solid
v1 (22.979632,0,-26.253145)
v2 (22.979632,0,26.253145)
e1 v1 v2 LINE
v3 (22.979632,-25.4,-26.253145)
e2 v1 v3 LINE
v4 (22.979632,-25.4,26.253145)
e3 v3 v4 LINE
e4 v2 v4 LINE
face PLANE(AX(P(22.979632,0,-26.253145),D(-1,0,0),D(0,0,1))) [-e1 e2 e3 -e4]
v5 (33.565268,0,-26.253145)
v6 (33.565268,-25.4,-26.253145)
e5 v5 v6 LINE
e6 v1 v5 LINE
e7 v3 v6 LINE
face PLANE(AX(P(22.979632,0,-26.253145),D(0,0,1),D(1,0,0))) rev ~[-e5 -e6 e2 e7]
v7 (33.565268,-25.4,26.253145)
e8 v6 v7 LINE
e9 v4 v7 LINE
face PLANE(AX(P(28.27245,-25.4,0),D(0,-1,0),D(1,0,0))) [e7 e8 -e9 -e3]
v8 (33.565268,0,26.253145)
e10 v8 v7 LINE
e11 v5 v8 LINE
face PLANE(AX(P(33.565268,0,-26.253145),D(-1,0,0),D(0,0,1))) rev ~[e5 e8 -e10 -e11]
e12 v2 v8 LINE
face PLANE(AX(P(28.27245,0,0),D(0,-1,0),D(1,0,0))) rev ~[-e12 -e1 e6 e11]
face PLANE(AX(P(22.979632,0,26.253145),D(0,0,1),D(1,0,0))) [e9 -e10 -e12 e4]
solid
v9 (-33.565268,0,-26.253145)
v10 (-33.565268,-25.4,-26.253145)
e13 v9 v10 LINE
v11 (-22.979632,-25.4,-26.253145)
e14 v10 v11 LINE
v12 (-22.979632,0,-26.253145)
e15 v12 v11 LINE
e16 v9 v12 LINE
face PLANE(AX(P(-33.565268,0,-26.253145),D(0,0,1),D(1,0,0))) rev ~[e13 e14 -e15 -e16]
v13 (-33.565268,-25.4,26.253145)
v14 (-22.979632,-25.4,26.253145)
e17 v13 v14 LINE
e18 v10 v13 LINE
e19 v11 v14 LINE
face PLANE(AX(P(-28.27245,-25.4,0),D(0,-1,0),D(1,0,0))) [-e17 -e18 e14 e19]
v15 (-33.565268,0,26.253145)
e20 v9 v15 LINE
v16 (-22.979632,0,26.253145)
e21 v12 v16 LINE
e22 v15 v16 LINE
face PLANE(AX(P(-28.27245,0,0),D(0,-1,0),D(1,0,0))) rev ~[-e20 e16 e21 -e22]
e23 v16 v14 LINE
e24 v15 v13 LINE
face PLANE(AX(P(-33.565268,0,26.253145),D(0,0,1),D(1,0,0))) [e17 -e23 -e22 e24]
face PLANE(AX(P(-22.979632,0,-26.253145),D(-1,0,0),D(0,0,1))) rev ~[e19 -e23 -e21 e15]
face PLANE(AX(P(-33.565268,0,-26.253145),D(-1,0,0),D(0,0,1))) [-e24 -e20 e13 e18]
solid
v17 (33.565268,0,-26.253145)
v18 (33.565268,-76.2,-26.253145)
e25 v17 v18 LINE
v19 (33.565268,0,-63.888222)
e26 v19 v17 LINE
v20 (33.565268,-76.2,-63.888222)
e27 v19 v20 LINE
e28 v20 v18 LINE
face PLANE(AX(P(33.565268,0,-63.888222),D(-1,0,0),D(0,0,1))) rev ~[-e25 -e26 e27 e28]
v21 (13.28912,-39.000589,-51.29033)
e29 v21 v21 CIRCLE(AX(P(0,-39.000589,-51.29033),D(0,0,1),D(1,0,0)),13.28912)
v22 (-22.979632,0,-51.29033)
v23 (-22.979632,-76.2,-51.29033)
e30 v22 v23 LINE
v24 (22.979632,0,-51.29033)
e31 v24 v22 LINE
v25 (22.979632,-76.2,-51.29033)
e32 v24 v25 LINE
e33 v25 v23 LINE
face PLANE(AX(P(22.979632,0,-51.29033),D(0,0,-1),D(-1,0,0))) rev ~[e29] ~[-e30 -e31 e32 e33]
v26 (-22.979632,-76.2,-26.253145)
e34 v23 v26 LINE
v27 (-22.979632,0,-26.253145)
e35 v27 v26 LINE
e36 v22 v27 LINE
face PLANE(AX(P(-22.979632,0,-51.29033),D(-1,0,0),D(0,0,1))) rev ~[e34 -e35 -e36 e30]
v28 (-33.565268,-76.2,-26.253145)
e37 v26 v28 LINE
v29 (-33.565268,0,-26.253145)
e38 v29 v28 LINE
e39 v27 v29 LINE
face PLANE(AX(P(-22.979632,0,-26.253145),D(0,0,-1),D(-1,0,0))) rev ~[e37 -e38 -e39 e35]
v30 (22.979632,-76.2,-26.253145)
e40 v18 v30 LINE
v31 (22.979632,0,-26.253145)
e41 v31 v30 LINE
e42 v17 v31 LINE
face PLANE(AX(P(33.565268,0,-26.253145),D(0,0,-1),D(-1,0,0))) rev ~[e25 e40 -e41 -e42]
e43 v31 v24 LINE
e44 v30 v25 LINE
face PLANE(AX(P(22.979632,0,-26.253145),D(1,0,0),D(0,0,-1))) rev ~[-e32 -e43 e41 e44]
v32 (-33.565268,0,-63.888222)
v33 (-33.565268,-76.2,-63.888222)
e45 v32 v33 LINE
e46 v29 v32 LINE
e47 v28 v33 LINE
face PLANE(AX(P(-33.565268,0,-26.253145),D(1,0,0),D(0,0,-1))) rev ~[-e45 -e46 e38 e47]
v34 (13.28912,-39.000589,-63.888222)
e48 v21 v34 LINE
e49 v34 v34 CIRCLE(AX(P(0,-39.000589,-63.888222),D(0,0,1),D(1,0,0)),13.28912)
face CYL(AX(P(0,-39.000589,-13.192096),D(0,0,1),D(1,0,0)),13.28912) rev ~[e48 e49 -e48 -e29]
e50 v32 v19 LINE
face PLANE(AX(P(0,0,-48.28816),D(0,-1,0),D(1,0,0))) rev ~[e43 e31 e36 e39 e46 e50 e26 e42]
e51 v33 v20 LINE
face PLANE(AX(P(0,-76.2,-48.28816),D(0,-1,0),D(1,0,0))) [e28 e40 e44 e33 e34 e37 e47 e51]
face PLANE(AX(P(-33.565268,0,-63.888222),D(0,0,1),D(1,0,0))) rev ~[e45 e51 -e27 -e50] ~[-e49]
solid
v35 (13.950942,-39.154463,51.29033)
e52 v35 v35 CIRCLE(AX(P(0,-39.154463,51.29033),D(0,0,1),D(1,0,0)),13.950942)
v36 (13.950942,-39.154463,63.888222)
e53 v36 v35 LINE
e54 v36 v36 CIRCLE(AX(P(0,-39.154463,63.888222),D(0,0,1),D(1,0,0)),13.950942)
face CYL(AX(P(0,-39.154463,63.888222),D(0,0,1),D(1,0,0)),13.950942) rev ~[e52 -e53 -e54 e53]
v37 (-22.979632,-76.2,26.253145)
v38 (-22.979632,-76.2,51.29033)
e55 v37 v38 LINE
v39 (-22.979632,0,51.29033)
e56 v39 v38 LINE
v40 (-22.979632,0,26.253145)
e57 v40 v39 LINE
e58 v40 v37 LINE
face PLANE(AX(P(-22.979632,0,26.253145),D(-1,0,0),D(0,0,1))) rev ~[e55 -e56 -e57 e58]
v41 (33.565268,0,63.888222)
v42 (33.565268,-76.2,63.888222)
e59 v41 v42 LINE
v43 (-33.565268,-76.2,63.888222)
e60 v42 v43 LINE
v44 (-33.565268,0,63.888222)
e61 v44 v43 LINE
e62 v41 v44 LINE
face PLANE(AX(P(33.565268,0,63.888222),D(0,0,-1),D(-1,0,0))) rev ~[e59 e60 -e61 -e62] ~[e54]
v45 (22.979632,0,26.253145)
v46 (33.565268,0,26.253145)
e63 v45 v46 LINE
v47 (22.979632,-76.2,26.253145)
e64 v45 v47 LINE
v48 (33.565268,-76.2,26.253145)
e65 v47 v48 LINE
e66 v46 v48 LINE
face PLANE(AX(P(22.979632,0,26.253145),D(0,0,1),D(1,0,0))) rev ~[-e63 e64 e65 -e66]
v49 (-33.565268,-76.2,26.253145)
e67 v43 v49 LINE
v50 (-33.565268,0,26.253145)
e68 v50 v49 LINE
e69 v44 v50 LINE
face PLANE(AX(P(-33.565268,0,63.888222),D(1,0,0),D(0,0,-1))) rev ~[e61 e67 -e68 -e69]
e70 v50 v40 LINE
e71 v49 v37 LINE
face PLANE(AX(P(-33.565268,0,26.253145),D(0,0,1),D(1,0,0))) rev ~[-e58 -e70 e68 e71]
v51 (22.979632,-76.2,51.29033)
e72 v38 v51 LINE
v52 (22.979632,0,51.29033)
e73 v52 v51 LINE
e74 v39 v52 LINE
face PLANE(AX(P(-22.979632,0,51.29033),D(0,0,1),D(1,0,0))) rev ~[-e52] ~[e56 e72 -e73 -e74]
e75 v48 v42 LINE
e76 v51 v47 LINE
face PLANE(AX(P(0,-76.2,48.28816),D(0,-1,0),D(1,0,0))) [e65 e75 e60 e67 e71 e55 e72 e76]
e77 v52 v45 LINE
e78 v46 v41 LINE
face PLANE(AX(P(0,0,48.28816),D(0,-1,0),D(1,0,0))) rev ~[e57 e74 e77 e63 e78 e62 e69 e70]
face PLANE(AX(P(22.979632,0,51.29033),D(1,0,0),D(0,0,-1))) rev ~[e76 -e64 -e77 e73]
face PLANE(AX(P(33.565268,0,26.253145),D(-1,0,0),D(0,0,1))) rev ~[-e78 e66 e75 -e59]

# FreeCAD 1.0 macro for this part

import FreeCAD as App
import Part
import Sketcher
from FreeCAD import Vector
Q = App.Units.Quantity


def add_polygon(sketch, points):
    """Adds a closed chain of lines whose ends are joined by coincident constraints."""
    first, n = sketch.GeometryCount, len(points)
    for a, b in zip(points, points[1:] + points[:1]):
        sketch.addGeometry(Part.LineSegment(App.Vector(*a, 0), App.Vector(*b, 0)), False)
    for i in range(n):
        sketch.addConstraint(Sketcher.Constraint("Coincident", first + i, 2, first + (i + 1) % n, 1))

doc = App.newDocument("Part")
body = doc.addObject("PartDesign::Body", "Body")

sketch1 = body.newObject("Sketcher::SketchObject", "Sketch")
sketch1.AttachmentSupport = (doc.getObject("XZ_Plane"), [""])
sketch1.MapMode = "FlatFace"
add_polygon(sketch1, [(34, 26), (34, 64), (-34, 64), (-34, 26), (-23, 26), (-23, 51), (23, 51), (23, 26)])
sketch1.addConstraint(Sketcher.Constraint("Vertical", 0))
sketch1.addConstraint(Sketcher.Constraint("Horizontal", 1))
sketch1.addConstraint(Sketcher.Constraint("Vertical", 2))
sketch1.addConstraint(Sketcher.Constraint("Horizontal", 3))
sketch1.addConstraint(Sketcher.Constraint("Vertical", 4))
sketch1.addConstraint(Sketcher.Constraint("Horizontal", 5))
sketch1.addConstraint(Sketcher.Constraint("Vertical", 6))
sketch1.addConstraint(Sketcher.Constraint("Horizontal", 7))
sketch1.addConstraint(Sketcher.Constraint("Symmetric", 3, 2, 6, 2, -2))
sketch1.addConstraint(Sketcher.Constraint("Equal", 3, 7))
sketch1.addConstraint(Sketcher.Constraint("DistanceX", 3, 2, 0, 2, Q("56.5449 mm")))
sketch1.addConstraint(Sketcher.Constraint("DistanceX", 1, 2, 1, 1, Q("67.130536 mm")))
sketch1.addConstraint(Sketcher.Constraint("DistanceY", 0, 1, 0, 2, Q("37.635077 mm")))
sketch1.addConstraint(Sketcher.Constraint("DistanceY", 4, 1, 4, 2, Q("25.037184 mm")))
sketch1.addConstraint(Sketcher.Constraint("DistanceY", -1, 1, 0, 2, Q("63.888222 mm")))
pad1 = body.newObject("PartDesign::Pad", "Pad")
pad1.Profile = sketch1
pad1.Length = Q("3 in")

sketch2 = body.newObject("Sketcher::SketchObject", "Sketch001")
sketch2.AttachmentSupport = (doc.getObject("XY_Plane"), [""])
sketch2.MapMode = "FlatFace"
sketch2.AttachmentOffset = App.Placement(Vector(0, 0, 63.888222), App.Rotation())
sketch2.addGeometry(Part.Circle(Vector(0, -39, 0), Vector(0, 0, 1), 14), False)
sketch2.addConstraint(Sketcher.Constraint("PointOnObject", 0, 3, -2))
sketch2.addConstraint(Sketcher.Constraint("Diameter", 0, Q("27.901883 mm")))
sketch2.addConstraint(Sketcher.Constraint("DistanceY", 0, 3, -1, 1, Q("39.154463 mm")))
pocket1 = body.newObject("PartDesign::Pocket", "Pocket")
pocket1.Profile = sketch2
pocket1.Length = Q("5 in")
body2 = doc.addObject("PartDesign::Body", "Body001")

sketch3 = body2.newObject("Sketcher::SketchObject", "Sketch002")
sketch3.AttachmentSupport = (doc.getObject("XZ_Plane001"), [""])
sketch3.MapMode = "FlatFace"
add_polygon(sketch3, [(34, -64), (34, -26), (23, -26), (23, -51), (-23, -51), (-23, -26), (-34, -26), (-34, -64)])
sketch3.addConstraint(Sketcher.Constraint("Vertical", 0))
sketch3.addConstraint(Sketcher.Constraint("Horizontal", 1))
sketch3.addConstraint(Sketcher.Constraint("Vertical", 2))
sketch3.addConstraint(Sketcher.Constraint("Horizontal", 3))
sketch3.addConstraint(Sketcher.Constraint("Vertical", 4))
sketch3.addConstraint(Sketcher.Constraint("Horizontal", 5))
sketch3.addConstraint(Sketcher.Constraint("Vertical", 6))
sketch3.addConstraint(Sketcher.Constraint("Horizontal", 7))
sketch3.addConstraint(Sketcher.Constraint("Symmetric", 1, 2, 4, 2, -2))
sketch3.addConstraint(Sketcher.Constraint("Equal", 1, 5))
sketch3.addConstraint(Sketcher.Constraint("DistanceX", 3, 2, 0, 2, Q("56.5449 mm")))
sketch3.addConstraint(Sketcher.Constraint("DistanceX", 1, 2, 1, 1, Q("10.585636 mm")))
sketch3.addConstraint(Sketcher.Constraint("DistanceY", 0, 1, 0, 2, Q("37.635077 mm")))
sketch3.addConstraint(Sketcher.Constraint("DistanceY", 2, 2, 2, 1, Q("25.037184 mm")))
sketch3.addConstraint(Sketcher.Constraint("DistanceY", 2, 2, -1, 1, Q("51.29033 mm")))
pad2 = body2.newObject("PartDesign::Pad", "Pad001")
pad2.Profile = sketch3
pad2.Length = Q("3 in")

sketch4 = body2.newObject("Sketcher::SketchObject", "Sketch003")
sketch4.AttachmentSupport = (doc.getObject("XY_Plane001"), [""])
sketch4.MapMode = "FlatFace"
sketch4.AttachmentOffset = App.Placement(Vector(0, 0, -13.192096), App.Rotation())
sketch4.addGeometry(Part.Circle(Vector(0, -39, 0), Vector(0, 0, 1), 13), False)
sketch4.addConstraint(Sketcher.Constraint("PointOnObject", 0, 3, -2))
sketch4.addConstraint(Sketcher.Constraint("Diameter", 0, Q("26.57824 mm")))
sketch4.addConstraint(Sketcher.Constraint("DistanceY", 0, 3, -1, 1, Q("39.000589 mm")))
pocket2 = body2.newObject("PartDesign::Pocket", "Pocket001")
pocket2.Profile = sketch4
pocket2.Length = 113.807904
body3 = doc.addObject("PartDesign::Body", "Body002")

sketch5 = body3.newObject("Sketcher::SketchObject", "Sketch004")
sketch5.AttachmentSupport = (doc.getObject("XZ_Plane002"), [""])
sketch5.MapMode = "FlatFace"
add_polygon(sketch5, [(-34, 26), (-34, -26), (-23, -26), (-23, 26)])
sketch5.addConstraint(Sketcher.Constraint("Vertical", 0))
sketch5.addConstraint(Sketcher.Constraint("Horizontal", 1))
sketch5.addConstraint(Sketcher.Constraint("Vertical", 2))
sketch5.addConstraint(Sketcher.Constraint("Horizontal", 3))
sketch5.addConstraint(Sketcher.Constraint("DistanceY", 0, 2, 0, 1, Q("52.50629 mm")))
sketch5.addConstraint(Sketcher.Constraint("DistanceX", 1, 1, 1, 2, Q("10.585636 mm")))
sketch5.addConstraint(Sketcher.Constraint("DistanceX", 0, 2, -1, 1, Q("33.565268 mm")))
sketch5.addConstraint(Sketcher.Constraint("DistanceY", 0, 2, -1, 1, Q("26.253145 mm")))
pad3 = body3.newObject("PartDesign::Pad", "Pad002")
pad3.Profile = sketch5
pad3.Length = Q("1 in")
body4 = doc.addObject("PartDesign::Body", "Body003")

sketch6 = body4.newObject("Sketcher::SketchObject", "Sketch005")
sketch6.AttachmentSupport = (doc.getObject("XZ_Plane003"), [""])
sketch6.MapMode = "FlatFace"
add_polygon(sketch6, [(23, 26), (23, -26), (34, -26), (34, 26)])
sketch6.addConstraint(Sketcher.Constraint("Vertical", 0))
sketch6.addConstraint(Sketcher.Constraint("Horizontal", 1))
sketch6.addConstraint(Sketcher.Constraint("Vertical", 2))
sketch6.addConstraint(Sketcher.Constraint("Horizontal", 3))
sketch6.addConstraint(Sketcher.Constraint("DistanceY", 0, 2, 0, 1, Q("52.50629 mm")))
sketch6.addConstraint(Sketcher.Constraint("DistanceX", 1, 1, 1, 2, Q("10.585636 mm")))
sketch6.addConstraint(Sketcher.Constraint("DistanceX", -1, 1, 0, 2, Q("22.979632 mm")))
sketch6.addConstraint(Sketcher.Constraint("DistanceY", 0, 2, -1, 1, Q("26.253145 mm")))
pad4 = body4.newObject("PartDesign::Pad", "Pad003")
pad4.Profile = sketch6
pad4.Length = Q("1 in")

doc.recompute()
